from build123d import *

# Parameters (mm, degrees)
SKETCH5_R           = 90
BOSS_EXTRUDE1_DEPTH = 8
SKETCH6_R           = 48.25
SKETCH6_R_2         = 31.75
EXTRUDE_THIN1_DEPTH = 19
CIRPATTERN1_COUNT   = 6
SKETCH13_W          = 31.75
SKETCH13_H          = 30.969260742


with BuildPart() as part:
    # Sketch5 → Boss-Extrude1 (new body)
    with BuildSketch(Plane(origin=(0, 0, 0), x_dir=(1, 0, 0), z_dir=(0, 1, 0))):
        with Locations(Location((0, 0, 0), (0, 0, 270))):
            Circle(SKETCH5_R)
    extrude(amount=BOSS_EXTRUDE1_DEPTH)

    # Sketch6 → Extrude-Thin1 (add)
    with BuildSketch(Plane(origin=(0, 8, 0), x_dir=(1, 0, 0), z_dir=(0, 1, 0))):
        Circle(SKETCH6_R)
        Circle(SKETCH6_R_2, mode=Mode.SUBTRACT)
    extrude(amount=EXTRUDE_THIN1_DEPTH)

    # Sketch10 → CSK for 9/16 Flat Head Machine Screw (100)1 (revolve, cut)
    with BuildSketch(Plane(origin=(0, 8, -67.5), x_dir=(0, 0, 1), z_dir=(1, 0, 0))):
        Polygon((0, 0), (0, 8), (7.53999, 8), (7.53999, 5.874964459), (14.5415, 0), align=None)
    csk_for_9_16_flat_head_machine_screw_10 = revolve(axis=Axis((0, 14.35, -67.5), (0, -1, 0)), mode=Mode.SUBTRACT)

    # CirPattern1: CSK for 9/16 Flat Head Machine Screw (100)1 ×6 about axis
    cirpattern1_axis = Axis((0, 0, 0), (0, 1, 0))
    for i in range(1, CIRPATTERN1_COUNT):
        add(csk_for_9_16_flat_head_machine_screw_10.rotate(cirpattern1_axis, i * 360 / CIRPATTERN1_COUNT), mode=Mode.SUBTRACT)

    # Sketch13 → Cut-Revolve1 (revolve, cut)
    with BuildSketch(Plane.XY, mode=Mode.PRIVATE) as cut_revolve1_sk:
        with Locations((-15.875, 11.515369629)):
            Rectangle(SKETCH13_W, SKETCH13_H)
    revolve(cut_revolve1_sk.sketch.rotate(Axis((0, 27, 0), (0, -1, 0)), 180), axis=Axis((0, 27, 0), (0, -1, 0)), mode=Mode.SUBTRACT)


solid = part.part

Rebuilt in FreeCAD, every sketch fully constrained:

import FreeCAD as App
import Part
import Sketcher
Q = App.Units.Quantity


def add_polygon(sketch, points):
    """Adds a closed chain of lines whose ends are joined by coincident constraints."""
    first, n = sketch.GeometryCount, len(points)
    for a, b in zip(points, points[1:] + points[:1]):
        sketch.addGeometry(Part.LineSegment(App.Vector(*a, 0), App.Vector(*b, 0)), False)
    for i in range(n):
        sketch.addConstraint(Sketcher.Constraint("Coincident", first + i, 2, first + (i + 1) % n, 1))

doc = App.newDocument("Part")
body = doc.addObject("PartDesign::Body", "Body")

sketch1 = doc.addObject("Sketcher::SketchObject", "Sketch")
body.addObject(sketch1)
sketch1.AttachmentSupport = (doc.XZ_Plane, [""])
sketch1.MapMode = "FlatFace"
sketch1.addGeometry(Part.Circle(App.Vector(0, 0, 0), App.Vector(0, 0, 1), 90), False)
sketch1.addConstraint([
    Sketcher.Constraint("Coincident", 0, 3, -1, 1),
    Sketcher.Constraint("Diameter", 0, 180.0),
])
pad1 = doc.addObject("PartDesign::Pad", "Pad")
body.addObject(pad1)
pad1.Profile = sketch1
pad1.Length = 8
pad1.Reversed = True

sketch2 = doc.addObject("Sketcher::SketchObject", "Sketch001")
body.addObject(sketch2)
sketch2.AttachmentSupport = (doc.XZ_Plane, [""])
sketch2.MapMode = "FlatFace"
sketch2.AttachmentOffset = App.Placement(App.Vector(0, 0, -8), App.Rotation())
sketch2.addGeometry([
    Part.Circle(App.Vector(0, 0, 0), App.Vector(0, 0, 1), 48),
    Part.Circle(App.Vector(0, 0, 0), App.Vector(0, 0, 1), 32),
], False)
sketch2.addConstraint([
    Sketcher.Constraint("Coincident", 0, 3, -1, 1),
    Sketcher.Constraint("Coincident", 1, 3, -1, 1),
    Sketcher.Constraint("Diameter", 0, 96.5),
    Sketcher.Constraint("Diameter", 1, 63.5),
])
pad2 = doc.addObject("PartDesign::Pad", "Pad001")
body.addObject(pad2)
pad2.Profile = sketch2
pad2.Length = 19
pad2.Reversed = True

sketch3 = doc.addObject("Sketcher::SketchObject", "Sketch002")
body.addObject(sketch3)
sketch3.AttachmentSupport = (doc.YZ_Plane, [""])
sketch3.MapMode = "FlatFace"
add_polygon(sketch3, [(0, -67.5), (8, -67.5), (8, -53), (2.1, -60), (0, -60)])
sketch3.addGeometry(Part.LineSegment(App.Vector(8, -67.5, 0), App.Vector(0, -67.5, 0)), True)
sketch3.addConstraint([
    Sketcher.Constraint("Horizontal", 0),
    Sketcher.Constraint("Vertical", 1),
    Sketcher.Constraint("Horizontal", 3),
    Sketcher.Constraint("Vertical", 4),
    Sketcher.Constraint("Horizontal", 5),
    Sketcher.Constraint("Coincident", 5, 1, 0, 2),
    Sketcher.Constraint("PointOnObject", 3, 2, -2),
    Sketcher.Constraint("PointOnObject", 5, 2, -2),
    Sketcher.Constraint("DistanceX", 0, 1, 0, 2, 8.0),
    Sketcher.Constraint("Angle", 2, Q("-130 deg")),
    Sketcher.Constraint("DistanceY", 0, 2, -1, 1, 67.5),
    Sketcher.Constraint("DistanceY", 1, 1, 1, 2, 14.5415),
    Sketcher.Constraint("DistanceY", 4, 2, 4, 1, 7.53999),
])
groove = doc.addObject("PartDesign::Groove", "Groove")
body.addObject(groove)
groove.Profile = sketch3
groove.ReferenceAxis = (sketch3, ["Axis0"])
groove.Angle = 360
doc.recompute()

polarpattern = doc.addObject("PartDesign::PolarPattern", "PolarPattern")
body.addObject(polarpattern)
polarpattern.Originals = [groove]
polarpattern.Axis = (doc.Y_Axis, [""])
polarpattern.Angle = 360
polarpattern.Occurrences = 6
body.Tip = polarpattern

sketch4 = doc.addObject("Sketcher::SketchObject", "Sketch003")
body.addObject(sketch4)
sketch4.AttachmentSupport = (doc.XY_Plane, [""])
sketch4.MapMode = "FlatFace"
add_polygon(sketch4, [(-32, 27), (-32, -4), (0, -4), (0, 27)])
sketch4.addConstraint([
    Sketcher.Constraint("Vertical", 0),
    Sketcher.Constraint("Horizontal", 1),
    Sketcher.Constraint("Vertical", 2),
    Sketcher.Constraint("Horizontal", 3),
    Sketcher.Constraint("PointOnObject", 1, 2, -2),
    Sketcher.Constraint("DistanceY", -1, 1, 2, 2, 27.0),
    Sketcher.Constraint("DistanceX", 1, 1, 1, 2, 31.75),
    Sketcher.Constraint("DistanceY", 0, 2, 0, 1, 30.969261),
])
groove2 = doc.addObject("PartDesign::Groove", "Groove001")
body.addObject(groove2)
groove2.Profile = sketch4
groove2.ReferenceAxis = (sketch4, ["V_Axis"])
groove2.Angle = 360

doc.recompute()
